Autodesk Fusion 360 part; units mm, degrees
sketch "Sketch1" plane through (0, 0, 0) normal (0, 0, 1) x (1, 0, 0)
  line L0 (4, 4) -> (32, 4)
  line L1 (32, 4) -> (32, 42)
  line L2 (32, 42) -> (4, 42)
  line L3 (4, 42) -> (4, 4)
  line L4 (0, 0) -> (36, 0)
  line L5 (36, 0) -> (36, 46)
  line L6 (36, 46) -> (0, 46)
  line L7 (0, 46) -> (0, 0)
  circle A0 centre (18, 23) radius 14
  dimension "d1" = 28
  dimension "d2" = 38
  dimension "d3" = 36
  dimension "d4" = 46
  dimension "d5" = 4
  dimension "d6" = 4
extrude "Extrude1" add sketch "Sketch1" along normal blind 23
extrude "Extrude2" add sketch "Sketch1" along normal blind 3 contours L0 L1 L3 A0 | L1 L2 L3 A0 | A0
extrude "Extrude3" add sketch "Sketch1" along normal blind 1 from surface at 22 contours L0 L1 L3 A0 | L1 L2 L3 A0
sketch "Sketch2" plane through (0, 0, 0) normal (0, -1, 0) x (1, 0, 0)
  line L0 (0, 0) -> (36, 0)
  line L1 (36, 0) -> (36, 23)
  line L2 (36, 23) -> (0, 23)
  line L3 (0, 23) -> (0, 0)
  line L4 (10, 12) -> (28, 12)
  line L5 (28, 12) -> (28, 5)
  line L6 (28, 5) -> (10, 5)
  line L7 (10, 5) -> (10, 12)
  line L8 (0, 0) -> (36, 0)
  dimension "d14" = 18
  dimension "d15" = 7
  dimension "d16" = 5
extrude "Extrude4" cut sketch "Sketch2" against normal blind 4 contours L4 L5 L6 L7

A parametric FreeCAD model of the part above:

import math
import FreeCAD as App
import Part
import Sketcher

V = App.Vector
Q = App.Units.Quantity


def add_polygon(sketch, points):
    """Adds a closed chain of lines whose ends are joined by coincident constraints."""
    first, n = sketch.GeometryCount, len(points)
    for a, b in zip(points, points[1:] + points[:1]):
        sketch.addGeometry(Part.LineSegment(App.Vector(*a, 0), App.Vector(*b, 0)), False)
    for i in range(n):
        sketch.addConstraint(Sketcher.Constraint("Coincident", first + i, 2, first + (i + 1) % n, 1))

doc = App.newDocument("Part")
body = doc.addObject("PartDesign::Body", "Body")

sketch1 = doc.addObject("Sketcher::SketchObject", "Sketch")
body.addObject(sketch1)
sketch1.AttachmentSupport = (doc.XY_Plane, [""])
sketch1.MapMode = "FlatFace"
add_polygon(sketch1, [(0, 46), (0, 0), (36, 0), (36, 46)])
add_polygon(sketch1, [(32, 4), (4, 4), (4, 42), (32, 42)])
sketch1.addConstraint([
    Sketcher.Constraint("Vertical", 0),
    Sketcher.Constraint("Horizontal", 1),
    Sketcher.Constraint("Vertical", 2),
    Sketcher.Constraint("Horizontal", 3),
    Sketcher.Constraint("Horizontal", 4),
    Sketcher.Constraint("Vertical", 5),
    Sketcher.Constraint("Horizontal", 6),
    Sketcher.Constraint("Vertical", 7),
    Sketcher.Constraint("Coincident", 0, 2, -1, 1),
    Sketcher.Constraint("DistanceX", 1, 1, 1, 2, Q("36 mm")),
    Sketcher.Constraint("DistanceX", 4, 2, 4, 1, Q("28 mm")),
    Sketcher.Constraint("DistanceY", 0, 2, 0, 1, Q("46 mm")),
    Sketcher.Constraint("DistanceY", 5, 1, 5, 2, Q("38 mm")),
    Sketcher.Constraint("DistanceX", -1, 1, 4, 2, Q("4 mm")),
    Sketcher.Constraint("DistanceY", -1, 1, 4, 2, Q("4 mm")),
])
pad1 = doc.addObject("PartDesign::Pad", "Pad")
body.addObject(pad1)
pad1.Profile = sketch1
pad1.Length = 23

sketch2 = doc.addObject("Sketcher::SketchObject", "Sketch001")
body.addObject(sketch2)
sketch2.AttachmentSupport = (doc.XY_Plane, [""])
sketch2.MapMode = "FlatFace"
add_polygon(sketch2, [(4, 4), (32, 4), (32, 42), (4, 42)])
sketch2.addConstraint([
    Sketcher.Constraint("Horizontal", 0),
    Sketcher.Constraint("Vertical", 1),
    Sketcher.Constraint("Horizontal", 2),
    Sketcher.Constraint("Vertical", 3),
    Sketcher.Constraint("DistanceX", 0, 1, 0, 2, Q("28 mm")),
    Sketcher.Constraint("DistanceY", 1, 1, 1, 2, Q("38 mm")),
    Sketcher.Constraint("DistanceY", -1, 1, 0, 2, Q("4 mm")),
    Sketcher.Constraint("DistanceX", -1, 1, 2, 2, Q("4 mm")),
])
pad2 = doc.addObject("PartDesign::Pad", "Pad001")
body.addObject(pad2)
pad2.Profile = sketch2
pad2.Length = 3

sketch3 = doc.addObject("Sketcher::SketchObject", "Sketch002")
body.addObject(sketch3)
sketch3.AttachmentSupport = (doc.XY_Plane, [""])
sketch3.MapMode = "FlatFace"
sketch3.AttachmentOffset = App.Placement(V(0, 0, 22), App.Rotation())
sketch3.addGeometry([
    Part.LineSegment(V(4, 23, 0), V(4, 4, 0)),
    Part.LineSegment(V(4, 4, 0), V(32, 4, 0)),
    Part.LineSegment(V(32, 4, 0), V(32, 23, 0)),
    Part.ArcOfCircle(Part.Circle(V(18, 23, 0), V(0, 0, 1), 14), math.radians(180), math.radians(360)),
    Part.LineSegment(V(4, 42, 0), V(4, 23, 0)),
    Part.ArcOfCircle(Part.Circle(V(18, 23, 0), V(0, 0, 1), 14), math.radians(0), math.radians(180)),
    Part.LineSegment(V(32, 23, 0), V(32, 42, 0)),
    Part.LineSegment(V(32, 42, 0), V(4, 42, 0)),
], False)
sketch3.addConstraint([
    Sketcher.Constraint("Coincident", 0, 2, 1, 1),
    Sketcher.Constraint("Coincident", 1, 2, 2, 1),
    Sketcher.Constraint("Tangent", 2, 2, 3, 2),
    Sketcher.Constraint("Tangent", 3, 1, 0, 1),
    Sketcher.Constraint("Tangent", 4, 2, 5, 2),
    Sketcher.Constraint("Tangent", 5, 1, 6, 1),
    Sketcher.Constraint("Coincident", 6, 2, 7, 1),
    Sketcher.Constraint("Coincident", 7, 2, 4, 1),
    Sketcher.Constraint("Vertical", 0),
    Sketcher.Constraint("Horizontal", 1),
    Sketcher.Constraint("Vertical", 2),
    Sketcher.Constraint("Vertical", 4),
    Sketcher.Constraint("Vertical", 6),
    Sketcher.Constraint("Horizontal", 7),
    Sketcher.Constraint("Coincident", 5, 3, 3, 3),
    Sketcher.Constraint("Equal", 3, 5),
    Sketcher.Constraint("Equal", 2, 4),
    Sketcher.Constraint("Radius", 3, Q("14 mm")),
    Sketcher.Constraint("DistanceX", -1, 1, 0, 2, Q("4 mm")),
    Sketcher.Constraint("DistanceY", -1, 1, 0, 2, Q("4 mm")),
    Sketcher.Constraint("DistanceY", 0, 2, 0, 1, Q("19 mm")),
])
pad3 = doc.addObject("PartDesign::Pad", "Pad002")
body.addObject(pad3)
pad3.Profile = sketch3
pad3.Length = 1

sketch4 = doc.addObject("Sketcher::SketchObject", "Sketch003")
body.addObject(sketch4)
sketch4.AttachmentSupport = (doc.XZ_Plane, [""])
sketch4.MapMode = "FlatFace"
add_polygon(sketch4, [(28, 12), (10, 12), (10, 5), (28, 5)])
sketch4.addConstraint([
    Sketcher.Constraint("Horizontal", 0),
    Sketcher.Constraint("Vertical", 1),
    Sketcher.Constraint("Horizontal", 2),
    Sketcher.Constraint("Vertical", 3),
    Sketcher.Constraint("DistanceX", 0, 2, 0, 1, Q("18 mm")),
    Sketcher.Constraint("DistanceY", 1, 2, 1, 1, Q("7 mm")),
    Sketcher.Constraint("DistanceY", -1, 1, 1, 2, Q("5 mm")),
    Sketcher.Constraint("DistanceX", -1, 1, 0, 2, Q("10 mm")),
])
pocket1 = doc.addObject("PartDesign::Pocket", "Pocket")
body.addObject(pocket1)
pocket1.Profile = sketch4
pocket1.Length = 4

doc.recompute()
